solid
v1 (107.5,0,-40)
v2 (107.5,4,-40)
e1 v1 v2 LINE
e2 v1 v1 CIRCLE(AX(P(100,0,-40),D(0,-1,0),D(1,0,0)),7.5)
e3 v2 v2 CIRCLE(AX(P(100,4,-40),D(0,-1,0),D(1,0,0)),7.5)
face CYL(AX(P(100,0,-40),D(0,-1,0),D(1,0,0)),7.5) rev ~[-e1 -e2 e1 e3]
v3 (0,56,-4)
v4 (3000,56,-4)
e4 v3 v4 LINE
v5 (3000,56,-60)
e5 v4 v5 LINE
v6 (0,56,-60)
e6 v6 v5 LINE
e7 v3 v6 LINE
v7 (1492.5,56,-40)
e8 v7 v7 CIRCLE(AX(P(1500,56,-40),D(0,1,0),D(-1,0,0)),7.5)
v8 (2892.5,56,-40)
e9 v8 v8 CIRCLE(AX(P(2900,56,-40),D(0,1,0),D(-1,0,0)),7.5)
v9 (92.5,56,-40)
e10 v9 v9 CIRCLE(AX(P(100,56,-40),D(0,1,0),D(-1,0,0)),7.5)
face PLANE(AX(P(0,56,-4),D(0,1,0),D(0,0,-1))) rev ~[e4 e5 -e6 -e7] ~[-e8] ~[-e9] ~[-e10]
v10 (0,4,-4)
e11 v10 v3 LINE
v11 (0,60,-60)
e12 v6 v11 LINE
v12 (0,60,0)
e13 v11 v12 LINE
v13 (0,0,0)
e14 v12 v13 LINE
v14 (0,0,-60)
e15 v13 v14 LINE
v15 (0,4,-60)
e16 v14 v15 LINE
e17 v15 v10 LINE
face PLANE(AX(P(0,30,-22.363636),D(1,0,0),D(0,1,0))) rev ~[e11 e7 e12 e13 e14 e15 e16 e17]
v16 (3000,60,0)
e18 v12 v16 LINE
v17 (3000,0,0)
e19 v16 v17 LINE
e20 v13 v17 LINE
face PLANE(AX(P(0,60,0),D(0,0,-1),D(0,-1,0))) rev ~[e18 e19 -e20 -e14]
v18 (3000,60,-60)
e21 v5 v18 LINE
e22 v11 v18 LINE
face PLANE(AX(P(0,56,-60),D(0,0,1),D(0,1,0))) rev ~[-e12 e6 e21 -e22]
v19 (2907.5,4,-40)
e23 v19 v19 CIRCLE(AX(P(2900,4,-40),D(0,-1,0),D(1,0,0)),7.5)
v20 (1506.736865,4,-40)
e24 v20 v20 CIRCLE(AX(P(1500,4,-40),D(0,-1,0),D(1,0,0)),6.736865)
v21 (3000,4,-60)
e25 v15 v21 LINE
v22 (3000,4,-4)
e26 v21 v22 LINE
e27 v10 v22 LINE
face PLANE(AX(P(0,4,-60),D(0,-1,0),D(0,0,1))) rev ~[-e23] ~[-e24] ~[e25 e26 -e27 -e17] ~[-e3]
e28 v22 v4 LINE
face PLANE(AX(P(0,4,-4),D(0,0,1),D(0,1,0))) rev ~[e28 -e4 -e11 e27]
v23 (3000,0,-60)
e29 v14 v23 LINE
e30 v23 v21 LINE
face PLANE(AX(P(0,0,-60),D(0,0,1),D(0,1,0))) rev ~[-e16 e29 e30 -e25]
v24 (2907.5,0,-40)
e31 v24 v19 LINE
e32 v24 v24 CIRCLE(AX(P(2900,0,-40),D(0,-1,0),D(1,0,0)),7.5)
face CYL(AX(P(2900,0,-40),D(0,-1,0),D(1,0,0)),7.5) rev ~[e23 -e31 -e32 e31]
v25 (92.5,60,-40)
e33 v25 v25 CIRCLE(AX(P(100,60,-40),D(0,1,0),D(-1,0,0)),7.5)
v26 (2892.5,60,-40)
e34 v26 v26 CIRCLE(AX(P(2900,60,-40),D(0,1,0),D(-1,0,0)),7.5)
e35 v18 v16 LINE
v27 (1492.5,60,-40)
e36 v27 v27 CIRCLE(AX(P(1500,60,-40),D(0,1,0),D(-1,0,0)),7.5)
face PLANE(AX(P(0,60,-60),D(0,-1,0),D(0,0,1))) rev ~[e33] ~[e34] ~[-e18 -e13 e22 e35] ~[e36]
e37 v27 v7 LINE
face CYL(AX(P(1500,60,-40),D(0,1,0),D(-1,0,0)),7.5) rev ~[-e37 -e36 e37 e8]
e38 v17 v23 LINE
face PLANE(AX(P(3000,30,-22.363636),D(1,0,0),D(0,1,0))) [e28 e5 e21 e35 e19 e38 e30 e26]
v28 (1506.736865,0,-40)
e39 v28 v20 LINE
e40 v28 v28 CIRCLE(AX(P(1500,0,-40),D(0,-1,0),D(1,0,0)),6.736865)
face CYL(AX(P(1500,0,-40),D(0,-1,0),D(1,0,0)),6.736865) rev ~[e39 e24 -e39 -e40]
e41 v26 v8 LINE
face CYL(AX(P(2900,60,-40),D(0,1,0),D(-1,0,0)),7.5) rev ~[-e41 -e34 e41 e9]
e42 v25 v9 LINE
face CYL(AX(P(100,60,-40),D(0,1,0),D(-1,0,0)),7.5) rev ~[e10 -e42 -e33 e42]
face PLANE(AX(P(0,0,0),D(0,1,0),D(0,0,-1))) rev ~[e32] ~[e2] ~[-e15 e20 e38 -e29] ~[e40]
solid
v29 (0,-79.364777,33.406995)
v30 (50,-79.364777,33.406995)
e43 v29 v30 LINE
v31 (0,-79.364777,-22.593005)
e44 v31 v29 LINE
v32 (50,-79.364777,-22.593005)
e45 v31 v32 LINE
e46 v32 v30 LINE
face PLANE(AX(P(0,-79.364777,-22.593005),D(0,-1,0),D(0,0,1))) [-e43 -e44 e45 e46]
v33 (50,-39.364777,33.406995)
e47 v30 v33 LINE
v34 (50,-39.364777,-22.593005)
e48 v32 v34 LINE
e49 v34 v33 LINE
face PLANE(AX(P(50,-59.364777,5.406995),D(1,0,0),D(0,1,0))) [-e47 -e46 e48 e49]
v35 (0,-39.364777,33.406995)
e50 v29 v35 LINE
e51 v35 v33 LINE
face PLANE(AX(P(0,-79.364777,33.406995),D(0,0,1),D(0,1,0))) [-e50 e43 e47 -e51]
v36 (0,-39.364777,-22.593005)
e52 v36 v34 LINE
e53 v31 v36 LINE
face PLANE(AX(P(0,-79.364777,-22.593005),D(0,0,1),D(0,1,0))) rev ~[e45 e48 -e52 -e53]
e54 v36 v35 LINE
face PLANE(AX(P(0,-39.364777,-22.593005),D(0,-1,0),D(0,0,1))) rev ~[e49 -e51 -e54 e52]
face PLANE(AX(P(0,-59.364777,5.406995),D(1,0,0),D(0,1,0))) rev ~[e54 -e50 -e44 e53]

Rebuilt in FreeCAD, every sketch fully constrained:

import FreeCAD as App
import Part
import Sketcher
from FreeCAD import Vector
Q = App.Units.Quantity

doc = App.newDocument("Part")
body = doc.addObject("PartDesign::Body", "Body")

# Sketch on YZ plane
sketch1 = body.newObject("Sketcher::SketchObject", "Sketch")
sketch1.AttachmentSupport = (doc.getObject("YZ_Plane"), [""])
sketch1.MapMode = "FlatFace"
sketch1.addGeometry([
    Part.LineSegment(Vector(60, 0, 0), Vector(0, 0, 0)),  # 0
    Part.LineSegment(Vector(0, 0, 0), Vector(0, -60, 0)),  # 1
    Part.LineSegment(Vector(0, -60, 0), Vector(4, -60, 0)),  # 2
    Part.LineSegment(Vector(4, -60, 0), Vector(4, -4, 0)),  # 3
    Part.LineSegment(Vector(4, -4, 0), Vector(56, -4, 0)),  # 4
    Part.LineSegment(Vector(56, -4, 0), Vector(56, -60, 0)),  # 5
    Part.LineSegment(Vector(56, -60, 0), Vector(60, -60, 0)),  # 6
    Part.LineSegment(Vector(60, -60, 0), Vector(60, 0, 0)),  # 7
], False)
sketch1.addConstraint([
    Sketcher.Constraint("Coincident", 0, 2, 1, 1),
    Sketcher.Constraint("Coincident", 1, 2, 2, 1),
    Sketcher.Constraint("Coincident", 2, 2, 3, 1),
    Sketcher.Constraint("Coincident", 3, 2, 4, 1),
    Sketcher.Constraint("Coincident", 4, 2, 5, 1),
    Sketcher.Constraint("Coincident", 5, 2, 6, 1),
    Sketcher.Constraint("Coincident", 6, 2, 7, 1),
    Sketcher.Constraint("Coincident", 7, 2, 0, 1),
    Sketcher.Constraint("Horizontal", 0),
    Sketcher.Constraint("Vertical", 1),
    Sketcher.Constraint("Horizontal", 2),
    Sketcher.Constraint("Vertical", 3),
    Sketcher.Constraint("Horizontal", 4),
    Sketcher.Constraint("Vertical", 5),
    Sketcher.Constraint("Horizontal", 6),
    Sketcher.Constraint("Vertical", 7),
    Sketcher.Constraint("Coincident", 0, 2, -1, 1),
    Sketcher.Constraint("Horizontal", 2, 2, 5, 2),
    Sketcher.Constraint("Equal", 2, 6),
    Sketcher.Constraint("Equal", 0, 1),
    Sketcher.Constraint("DistanceX", 0, 2, 0, 1, Q("60 mm")),
    Sketcher.Constraint("DistanceX", 2, 1, 2, 2, Q("4 mm")),
    Sketcher.Constraint("DistanceY", 3, 1, 3, 2, Q("56 mm")),
])
pad1 = body.newObject("PartDesign::Pad", "Pad")
pad1.Profile = sketch1
pad1.Length = 3000

# Sketch on XZ plane
sketch2 = body.newObject("Sketcher::SketchObject", "Sketch001")
sketch2.AttachmentSupport = (doc.getObject("XZ_Plane"), [""])
sketch2.MapMode = "FlatFace"
sketch2.AttachmentOffset = App.Placement(Vector(0, 0, -60), App.Rotation())
sketch2.addGeometry(Part.Circle(Vector(100, -40, 0), Vector(0, 0, 1), 7.5), False)
sketch2.addConstraint([
    Sketcher.Constraint("Diameter", 0, Q("15 mm")),
    Sketcher.Constraint("DistanceX", -1, 1, 0, 3, Q("100 mm")),
    Sketcher.Constraint("DistanceY", 0, 3, -1, 1, Q("40 mm")),
])
pocket1 = body.newObject("PartDesign::Pocket", "Pocket")
pocket1.Profile = sketch2
pocket1.Length = 4
pocket1.Reversed = True

# Sketch on XZ plane
sketch3 = body.newObject("Sketcher::SketchObject", "Sketch002")
sketch3.AttachmentSupport = (doc.getObject("XZ_Plane"), [""])
sketch3.MapMode = "FlatFace"
sketch3.AttachmentOffset = App.Placement(Vector(0, 0, -60), App.Rotation())
sketch3.addGeometry(Part.Circle(Vector(2900, -40, 0), Vector(0, 0, 1), 7.5), False)
sketch3.addConstraint([
    Sketcher.Constraint("Diameter", 0, Q("15 mm")),
    Sketcher.Constraint("DistanceX", -1, 1, 0, 3, Q("2900 mm")),
    Sketcher.Constraint("DistanceY", 0, 3, -1, 1, Q("40 mm")),
])
pocket2 = body.newObject("PartDesign::Pocket", "Pocket001")
pocket2.Profile = sketch3
pocket2.Length = 4
pocket2.Reversed = True

# Sketch on XZ plane
sketch4 = body.newObject("Sketcher::SketchObject", "Sketch003")
sketch4.AttachmentSupport = (doc.getObject("XZ_Plane"), [""])
sketch4.MapMode = "FlatFace"
sketch4.AttachmentOffset = App.Placement(Vector(0, 0, -60), App.Rotation())
sketch4.addGeometry(Part.Circle(Vector(1500, -40, 0), Vector(0, 0, 1), 7.5), False)
sketch4.addConstraint([
    Sketcher.Constraint("Diameter", 0, Q("15 mm")),
    Sketcher.Constraint("DistanceX", -1, 1, 0, 3, Q("1500 mm")),
    Sketcher.Constraint("DistanceY", 0, 3, -1, 1, Q("40 mm")),
])
pocket3 = body.newObject("PartDesign::Pocket", "Pocket002")
pocket3.Profile = sketch4
pocket3.Length = 4
pocket3.Reversed = True

# Sketch on XZ plane
sketch5 = body.newObject("Sketcher::SketchObject", "Sketch004")
sketch5.AttachmentSupport = (doc.getObject("XZ_Plane"), [""])
sketch5.MapMode = "FlatFace"
sketch5.addGeometry(Part.Circle(Vector(100, -40, 0), Vector(0, 0, 1), 7.5), False)
sketch5.addConstraint([
    Sketcher.Constraint("Diameter", 0, Q("15 mm")),
    Sketcher.Constraint("DistanceX", -1, 1, 0, 3, Q("100 mm")),
    Sketcher.Constraint("DistanceY", 0, 3, -1, 1, Q("40 mm")),
])
pocket4 = body.newObject("PartDesign::Pocket", "Pocket003")
pocket4.Profile = sketch5
pocket4.Length = 4

# Sketch on XZ plane
sketch6 = body.newObject("Sketcher::SketchObject", "Sketch005")
sketch6.AttachmentSupport = (doc.getObject("XZ_Plane"), [""])
sketch6.MapMode = "FlatFace"
sketch6.addGeometry(Part.Circle(Vector(1500, -40, 0), Vector(0, 0, 1), 6.736865), False)
sketch6.addConstraint([
    Sketcher.Constraint("DistanceX", -1, 1, 0, 3, Q("1500 mm")),
    Sketcher.Constraint("DistanceY", 0, 3, -1, 1, Q("40 mm")),
    Sketcher.Constraint("Diameter", 0, Q("13.47373 mm")),
])
pocket5 = body.newObject("PartDesign::Pocket", "Pocket004")
pocket5.Profile = sketch6
pocket5.Length = 4

# Sketch on XZ plane
sketch7 = body.newObject("Sketcher::SketchObject", "Sketch006")
sketch7.AttachmentSupport = (doc.getObject("XZ_Plane"), [""])
sketch7.MapMode = "FlatFace"
sketch7.addGeometry(Part.Circle(Vector(2900, -40, 0), Vector(0, 0, 1), 7.5), False)
sketch7.addConstraint([
    Sketcher.Constraint("Diameter", 0, Q("15 mm")),
    Sketcher.Constraint("DistanceX", -1, 1, 0, 3, Q("2900 mm")),
    Sketcher.Constraint("DistanceY", 0, 3, -1, 1, Q("40 mm")),
])
pocket6 = body.newObject("PartDesign::Pocket", "Pocket005")
pocket6.Profile = sketch7
pocket6.Length = 4
body2 = doc.addObject("PartDesign::Body", "Body001")

# Sketch on YZ plane
sketch8 = body2.newObject("Sketcher::SketchObject", "Sketch007")
sketch8.AttachmentSupport = (doc.getObject("YZ_Plane001"), [""])
sketch8.MapMode = "FlatFace"
sketch8.addGeometry([
    Part.LineSegment(Vector(-79.364777, 33.406995, 0), Vector(-79.364777, -22.593005, 0)),
    Part.LineSegment(Vector(-79.364777, -22.593005, 0), Vector(-39.364777, -22.593005, 0)),
    Part.LineSegment(Vector(-39.364777, -22.593005, 0), Vector(-39.364777, 33.406995, 0)),
    Part.LineSegment(Vector(-39.364777, 33.406995, 0), Vector(-79.364777, 33.406995, 0)),
], False)
sketch8.addConstraint([
    Sketcher.Constraint("Coincident", 0, 2, 1, 1),
    Sketcher.Constraint("Coincident", 1, 2, 2, 1),
    Sketcher.Constraint("Coincident", 2, 2, 3, 1),
    Sketcher.Constraint("Coincident", 3, 2, 0, 1),
    Sketcher.Constraint("Vertical", 0),
    Sketcher.Constraint("Horizontal", 1),
    Sketcher.Constraint("Vertical", 2),
    Sketcher.Constraint("Horizontal", 3),
    Sketcher.Constraint("DistanceX", 1, 1, 1, 2, Q("40 mm")),
    Sketcher.Constraint("DistanceY", 0, 2, 0, 1, Q("56 mm")),
    Sketcher.Constraint("DistanceX", 0, 2, -1, 1, Q("79.364777 mm")),
    Sketcher.Constraint("DistanceY", 0, 2, -1, 1, Q("22.593005 mm")),
])
pad2 = body2.newObject("PartDesign::Pad", "Pad001")
pad2.Profile = sketch8
pad2.Length = 50

doc.recompute()
